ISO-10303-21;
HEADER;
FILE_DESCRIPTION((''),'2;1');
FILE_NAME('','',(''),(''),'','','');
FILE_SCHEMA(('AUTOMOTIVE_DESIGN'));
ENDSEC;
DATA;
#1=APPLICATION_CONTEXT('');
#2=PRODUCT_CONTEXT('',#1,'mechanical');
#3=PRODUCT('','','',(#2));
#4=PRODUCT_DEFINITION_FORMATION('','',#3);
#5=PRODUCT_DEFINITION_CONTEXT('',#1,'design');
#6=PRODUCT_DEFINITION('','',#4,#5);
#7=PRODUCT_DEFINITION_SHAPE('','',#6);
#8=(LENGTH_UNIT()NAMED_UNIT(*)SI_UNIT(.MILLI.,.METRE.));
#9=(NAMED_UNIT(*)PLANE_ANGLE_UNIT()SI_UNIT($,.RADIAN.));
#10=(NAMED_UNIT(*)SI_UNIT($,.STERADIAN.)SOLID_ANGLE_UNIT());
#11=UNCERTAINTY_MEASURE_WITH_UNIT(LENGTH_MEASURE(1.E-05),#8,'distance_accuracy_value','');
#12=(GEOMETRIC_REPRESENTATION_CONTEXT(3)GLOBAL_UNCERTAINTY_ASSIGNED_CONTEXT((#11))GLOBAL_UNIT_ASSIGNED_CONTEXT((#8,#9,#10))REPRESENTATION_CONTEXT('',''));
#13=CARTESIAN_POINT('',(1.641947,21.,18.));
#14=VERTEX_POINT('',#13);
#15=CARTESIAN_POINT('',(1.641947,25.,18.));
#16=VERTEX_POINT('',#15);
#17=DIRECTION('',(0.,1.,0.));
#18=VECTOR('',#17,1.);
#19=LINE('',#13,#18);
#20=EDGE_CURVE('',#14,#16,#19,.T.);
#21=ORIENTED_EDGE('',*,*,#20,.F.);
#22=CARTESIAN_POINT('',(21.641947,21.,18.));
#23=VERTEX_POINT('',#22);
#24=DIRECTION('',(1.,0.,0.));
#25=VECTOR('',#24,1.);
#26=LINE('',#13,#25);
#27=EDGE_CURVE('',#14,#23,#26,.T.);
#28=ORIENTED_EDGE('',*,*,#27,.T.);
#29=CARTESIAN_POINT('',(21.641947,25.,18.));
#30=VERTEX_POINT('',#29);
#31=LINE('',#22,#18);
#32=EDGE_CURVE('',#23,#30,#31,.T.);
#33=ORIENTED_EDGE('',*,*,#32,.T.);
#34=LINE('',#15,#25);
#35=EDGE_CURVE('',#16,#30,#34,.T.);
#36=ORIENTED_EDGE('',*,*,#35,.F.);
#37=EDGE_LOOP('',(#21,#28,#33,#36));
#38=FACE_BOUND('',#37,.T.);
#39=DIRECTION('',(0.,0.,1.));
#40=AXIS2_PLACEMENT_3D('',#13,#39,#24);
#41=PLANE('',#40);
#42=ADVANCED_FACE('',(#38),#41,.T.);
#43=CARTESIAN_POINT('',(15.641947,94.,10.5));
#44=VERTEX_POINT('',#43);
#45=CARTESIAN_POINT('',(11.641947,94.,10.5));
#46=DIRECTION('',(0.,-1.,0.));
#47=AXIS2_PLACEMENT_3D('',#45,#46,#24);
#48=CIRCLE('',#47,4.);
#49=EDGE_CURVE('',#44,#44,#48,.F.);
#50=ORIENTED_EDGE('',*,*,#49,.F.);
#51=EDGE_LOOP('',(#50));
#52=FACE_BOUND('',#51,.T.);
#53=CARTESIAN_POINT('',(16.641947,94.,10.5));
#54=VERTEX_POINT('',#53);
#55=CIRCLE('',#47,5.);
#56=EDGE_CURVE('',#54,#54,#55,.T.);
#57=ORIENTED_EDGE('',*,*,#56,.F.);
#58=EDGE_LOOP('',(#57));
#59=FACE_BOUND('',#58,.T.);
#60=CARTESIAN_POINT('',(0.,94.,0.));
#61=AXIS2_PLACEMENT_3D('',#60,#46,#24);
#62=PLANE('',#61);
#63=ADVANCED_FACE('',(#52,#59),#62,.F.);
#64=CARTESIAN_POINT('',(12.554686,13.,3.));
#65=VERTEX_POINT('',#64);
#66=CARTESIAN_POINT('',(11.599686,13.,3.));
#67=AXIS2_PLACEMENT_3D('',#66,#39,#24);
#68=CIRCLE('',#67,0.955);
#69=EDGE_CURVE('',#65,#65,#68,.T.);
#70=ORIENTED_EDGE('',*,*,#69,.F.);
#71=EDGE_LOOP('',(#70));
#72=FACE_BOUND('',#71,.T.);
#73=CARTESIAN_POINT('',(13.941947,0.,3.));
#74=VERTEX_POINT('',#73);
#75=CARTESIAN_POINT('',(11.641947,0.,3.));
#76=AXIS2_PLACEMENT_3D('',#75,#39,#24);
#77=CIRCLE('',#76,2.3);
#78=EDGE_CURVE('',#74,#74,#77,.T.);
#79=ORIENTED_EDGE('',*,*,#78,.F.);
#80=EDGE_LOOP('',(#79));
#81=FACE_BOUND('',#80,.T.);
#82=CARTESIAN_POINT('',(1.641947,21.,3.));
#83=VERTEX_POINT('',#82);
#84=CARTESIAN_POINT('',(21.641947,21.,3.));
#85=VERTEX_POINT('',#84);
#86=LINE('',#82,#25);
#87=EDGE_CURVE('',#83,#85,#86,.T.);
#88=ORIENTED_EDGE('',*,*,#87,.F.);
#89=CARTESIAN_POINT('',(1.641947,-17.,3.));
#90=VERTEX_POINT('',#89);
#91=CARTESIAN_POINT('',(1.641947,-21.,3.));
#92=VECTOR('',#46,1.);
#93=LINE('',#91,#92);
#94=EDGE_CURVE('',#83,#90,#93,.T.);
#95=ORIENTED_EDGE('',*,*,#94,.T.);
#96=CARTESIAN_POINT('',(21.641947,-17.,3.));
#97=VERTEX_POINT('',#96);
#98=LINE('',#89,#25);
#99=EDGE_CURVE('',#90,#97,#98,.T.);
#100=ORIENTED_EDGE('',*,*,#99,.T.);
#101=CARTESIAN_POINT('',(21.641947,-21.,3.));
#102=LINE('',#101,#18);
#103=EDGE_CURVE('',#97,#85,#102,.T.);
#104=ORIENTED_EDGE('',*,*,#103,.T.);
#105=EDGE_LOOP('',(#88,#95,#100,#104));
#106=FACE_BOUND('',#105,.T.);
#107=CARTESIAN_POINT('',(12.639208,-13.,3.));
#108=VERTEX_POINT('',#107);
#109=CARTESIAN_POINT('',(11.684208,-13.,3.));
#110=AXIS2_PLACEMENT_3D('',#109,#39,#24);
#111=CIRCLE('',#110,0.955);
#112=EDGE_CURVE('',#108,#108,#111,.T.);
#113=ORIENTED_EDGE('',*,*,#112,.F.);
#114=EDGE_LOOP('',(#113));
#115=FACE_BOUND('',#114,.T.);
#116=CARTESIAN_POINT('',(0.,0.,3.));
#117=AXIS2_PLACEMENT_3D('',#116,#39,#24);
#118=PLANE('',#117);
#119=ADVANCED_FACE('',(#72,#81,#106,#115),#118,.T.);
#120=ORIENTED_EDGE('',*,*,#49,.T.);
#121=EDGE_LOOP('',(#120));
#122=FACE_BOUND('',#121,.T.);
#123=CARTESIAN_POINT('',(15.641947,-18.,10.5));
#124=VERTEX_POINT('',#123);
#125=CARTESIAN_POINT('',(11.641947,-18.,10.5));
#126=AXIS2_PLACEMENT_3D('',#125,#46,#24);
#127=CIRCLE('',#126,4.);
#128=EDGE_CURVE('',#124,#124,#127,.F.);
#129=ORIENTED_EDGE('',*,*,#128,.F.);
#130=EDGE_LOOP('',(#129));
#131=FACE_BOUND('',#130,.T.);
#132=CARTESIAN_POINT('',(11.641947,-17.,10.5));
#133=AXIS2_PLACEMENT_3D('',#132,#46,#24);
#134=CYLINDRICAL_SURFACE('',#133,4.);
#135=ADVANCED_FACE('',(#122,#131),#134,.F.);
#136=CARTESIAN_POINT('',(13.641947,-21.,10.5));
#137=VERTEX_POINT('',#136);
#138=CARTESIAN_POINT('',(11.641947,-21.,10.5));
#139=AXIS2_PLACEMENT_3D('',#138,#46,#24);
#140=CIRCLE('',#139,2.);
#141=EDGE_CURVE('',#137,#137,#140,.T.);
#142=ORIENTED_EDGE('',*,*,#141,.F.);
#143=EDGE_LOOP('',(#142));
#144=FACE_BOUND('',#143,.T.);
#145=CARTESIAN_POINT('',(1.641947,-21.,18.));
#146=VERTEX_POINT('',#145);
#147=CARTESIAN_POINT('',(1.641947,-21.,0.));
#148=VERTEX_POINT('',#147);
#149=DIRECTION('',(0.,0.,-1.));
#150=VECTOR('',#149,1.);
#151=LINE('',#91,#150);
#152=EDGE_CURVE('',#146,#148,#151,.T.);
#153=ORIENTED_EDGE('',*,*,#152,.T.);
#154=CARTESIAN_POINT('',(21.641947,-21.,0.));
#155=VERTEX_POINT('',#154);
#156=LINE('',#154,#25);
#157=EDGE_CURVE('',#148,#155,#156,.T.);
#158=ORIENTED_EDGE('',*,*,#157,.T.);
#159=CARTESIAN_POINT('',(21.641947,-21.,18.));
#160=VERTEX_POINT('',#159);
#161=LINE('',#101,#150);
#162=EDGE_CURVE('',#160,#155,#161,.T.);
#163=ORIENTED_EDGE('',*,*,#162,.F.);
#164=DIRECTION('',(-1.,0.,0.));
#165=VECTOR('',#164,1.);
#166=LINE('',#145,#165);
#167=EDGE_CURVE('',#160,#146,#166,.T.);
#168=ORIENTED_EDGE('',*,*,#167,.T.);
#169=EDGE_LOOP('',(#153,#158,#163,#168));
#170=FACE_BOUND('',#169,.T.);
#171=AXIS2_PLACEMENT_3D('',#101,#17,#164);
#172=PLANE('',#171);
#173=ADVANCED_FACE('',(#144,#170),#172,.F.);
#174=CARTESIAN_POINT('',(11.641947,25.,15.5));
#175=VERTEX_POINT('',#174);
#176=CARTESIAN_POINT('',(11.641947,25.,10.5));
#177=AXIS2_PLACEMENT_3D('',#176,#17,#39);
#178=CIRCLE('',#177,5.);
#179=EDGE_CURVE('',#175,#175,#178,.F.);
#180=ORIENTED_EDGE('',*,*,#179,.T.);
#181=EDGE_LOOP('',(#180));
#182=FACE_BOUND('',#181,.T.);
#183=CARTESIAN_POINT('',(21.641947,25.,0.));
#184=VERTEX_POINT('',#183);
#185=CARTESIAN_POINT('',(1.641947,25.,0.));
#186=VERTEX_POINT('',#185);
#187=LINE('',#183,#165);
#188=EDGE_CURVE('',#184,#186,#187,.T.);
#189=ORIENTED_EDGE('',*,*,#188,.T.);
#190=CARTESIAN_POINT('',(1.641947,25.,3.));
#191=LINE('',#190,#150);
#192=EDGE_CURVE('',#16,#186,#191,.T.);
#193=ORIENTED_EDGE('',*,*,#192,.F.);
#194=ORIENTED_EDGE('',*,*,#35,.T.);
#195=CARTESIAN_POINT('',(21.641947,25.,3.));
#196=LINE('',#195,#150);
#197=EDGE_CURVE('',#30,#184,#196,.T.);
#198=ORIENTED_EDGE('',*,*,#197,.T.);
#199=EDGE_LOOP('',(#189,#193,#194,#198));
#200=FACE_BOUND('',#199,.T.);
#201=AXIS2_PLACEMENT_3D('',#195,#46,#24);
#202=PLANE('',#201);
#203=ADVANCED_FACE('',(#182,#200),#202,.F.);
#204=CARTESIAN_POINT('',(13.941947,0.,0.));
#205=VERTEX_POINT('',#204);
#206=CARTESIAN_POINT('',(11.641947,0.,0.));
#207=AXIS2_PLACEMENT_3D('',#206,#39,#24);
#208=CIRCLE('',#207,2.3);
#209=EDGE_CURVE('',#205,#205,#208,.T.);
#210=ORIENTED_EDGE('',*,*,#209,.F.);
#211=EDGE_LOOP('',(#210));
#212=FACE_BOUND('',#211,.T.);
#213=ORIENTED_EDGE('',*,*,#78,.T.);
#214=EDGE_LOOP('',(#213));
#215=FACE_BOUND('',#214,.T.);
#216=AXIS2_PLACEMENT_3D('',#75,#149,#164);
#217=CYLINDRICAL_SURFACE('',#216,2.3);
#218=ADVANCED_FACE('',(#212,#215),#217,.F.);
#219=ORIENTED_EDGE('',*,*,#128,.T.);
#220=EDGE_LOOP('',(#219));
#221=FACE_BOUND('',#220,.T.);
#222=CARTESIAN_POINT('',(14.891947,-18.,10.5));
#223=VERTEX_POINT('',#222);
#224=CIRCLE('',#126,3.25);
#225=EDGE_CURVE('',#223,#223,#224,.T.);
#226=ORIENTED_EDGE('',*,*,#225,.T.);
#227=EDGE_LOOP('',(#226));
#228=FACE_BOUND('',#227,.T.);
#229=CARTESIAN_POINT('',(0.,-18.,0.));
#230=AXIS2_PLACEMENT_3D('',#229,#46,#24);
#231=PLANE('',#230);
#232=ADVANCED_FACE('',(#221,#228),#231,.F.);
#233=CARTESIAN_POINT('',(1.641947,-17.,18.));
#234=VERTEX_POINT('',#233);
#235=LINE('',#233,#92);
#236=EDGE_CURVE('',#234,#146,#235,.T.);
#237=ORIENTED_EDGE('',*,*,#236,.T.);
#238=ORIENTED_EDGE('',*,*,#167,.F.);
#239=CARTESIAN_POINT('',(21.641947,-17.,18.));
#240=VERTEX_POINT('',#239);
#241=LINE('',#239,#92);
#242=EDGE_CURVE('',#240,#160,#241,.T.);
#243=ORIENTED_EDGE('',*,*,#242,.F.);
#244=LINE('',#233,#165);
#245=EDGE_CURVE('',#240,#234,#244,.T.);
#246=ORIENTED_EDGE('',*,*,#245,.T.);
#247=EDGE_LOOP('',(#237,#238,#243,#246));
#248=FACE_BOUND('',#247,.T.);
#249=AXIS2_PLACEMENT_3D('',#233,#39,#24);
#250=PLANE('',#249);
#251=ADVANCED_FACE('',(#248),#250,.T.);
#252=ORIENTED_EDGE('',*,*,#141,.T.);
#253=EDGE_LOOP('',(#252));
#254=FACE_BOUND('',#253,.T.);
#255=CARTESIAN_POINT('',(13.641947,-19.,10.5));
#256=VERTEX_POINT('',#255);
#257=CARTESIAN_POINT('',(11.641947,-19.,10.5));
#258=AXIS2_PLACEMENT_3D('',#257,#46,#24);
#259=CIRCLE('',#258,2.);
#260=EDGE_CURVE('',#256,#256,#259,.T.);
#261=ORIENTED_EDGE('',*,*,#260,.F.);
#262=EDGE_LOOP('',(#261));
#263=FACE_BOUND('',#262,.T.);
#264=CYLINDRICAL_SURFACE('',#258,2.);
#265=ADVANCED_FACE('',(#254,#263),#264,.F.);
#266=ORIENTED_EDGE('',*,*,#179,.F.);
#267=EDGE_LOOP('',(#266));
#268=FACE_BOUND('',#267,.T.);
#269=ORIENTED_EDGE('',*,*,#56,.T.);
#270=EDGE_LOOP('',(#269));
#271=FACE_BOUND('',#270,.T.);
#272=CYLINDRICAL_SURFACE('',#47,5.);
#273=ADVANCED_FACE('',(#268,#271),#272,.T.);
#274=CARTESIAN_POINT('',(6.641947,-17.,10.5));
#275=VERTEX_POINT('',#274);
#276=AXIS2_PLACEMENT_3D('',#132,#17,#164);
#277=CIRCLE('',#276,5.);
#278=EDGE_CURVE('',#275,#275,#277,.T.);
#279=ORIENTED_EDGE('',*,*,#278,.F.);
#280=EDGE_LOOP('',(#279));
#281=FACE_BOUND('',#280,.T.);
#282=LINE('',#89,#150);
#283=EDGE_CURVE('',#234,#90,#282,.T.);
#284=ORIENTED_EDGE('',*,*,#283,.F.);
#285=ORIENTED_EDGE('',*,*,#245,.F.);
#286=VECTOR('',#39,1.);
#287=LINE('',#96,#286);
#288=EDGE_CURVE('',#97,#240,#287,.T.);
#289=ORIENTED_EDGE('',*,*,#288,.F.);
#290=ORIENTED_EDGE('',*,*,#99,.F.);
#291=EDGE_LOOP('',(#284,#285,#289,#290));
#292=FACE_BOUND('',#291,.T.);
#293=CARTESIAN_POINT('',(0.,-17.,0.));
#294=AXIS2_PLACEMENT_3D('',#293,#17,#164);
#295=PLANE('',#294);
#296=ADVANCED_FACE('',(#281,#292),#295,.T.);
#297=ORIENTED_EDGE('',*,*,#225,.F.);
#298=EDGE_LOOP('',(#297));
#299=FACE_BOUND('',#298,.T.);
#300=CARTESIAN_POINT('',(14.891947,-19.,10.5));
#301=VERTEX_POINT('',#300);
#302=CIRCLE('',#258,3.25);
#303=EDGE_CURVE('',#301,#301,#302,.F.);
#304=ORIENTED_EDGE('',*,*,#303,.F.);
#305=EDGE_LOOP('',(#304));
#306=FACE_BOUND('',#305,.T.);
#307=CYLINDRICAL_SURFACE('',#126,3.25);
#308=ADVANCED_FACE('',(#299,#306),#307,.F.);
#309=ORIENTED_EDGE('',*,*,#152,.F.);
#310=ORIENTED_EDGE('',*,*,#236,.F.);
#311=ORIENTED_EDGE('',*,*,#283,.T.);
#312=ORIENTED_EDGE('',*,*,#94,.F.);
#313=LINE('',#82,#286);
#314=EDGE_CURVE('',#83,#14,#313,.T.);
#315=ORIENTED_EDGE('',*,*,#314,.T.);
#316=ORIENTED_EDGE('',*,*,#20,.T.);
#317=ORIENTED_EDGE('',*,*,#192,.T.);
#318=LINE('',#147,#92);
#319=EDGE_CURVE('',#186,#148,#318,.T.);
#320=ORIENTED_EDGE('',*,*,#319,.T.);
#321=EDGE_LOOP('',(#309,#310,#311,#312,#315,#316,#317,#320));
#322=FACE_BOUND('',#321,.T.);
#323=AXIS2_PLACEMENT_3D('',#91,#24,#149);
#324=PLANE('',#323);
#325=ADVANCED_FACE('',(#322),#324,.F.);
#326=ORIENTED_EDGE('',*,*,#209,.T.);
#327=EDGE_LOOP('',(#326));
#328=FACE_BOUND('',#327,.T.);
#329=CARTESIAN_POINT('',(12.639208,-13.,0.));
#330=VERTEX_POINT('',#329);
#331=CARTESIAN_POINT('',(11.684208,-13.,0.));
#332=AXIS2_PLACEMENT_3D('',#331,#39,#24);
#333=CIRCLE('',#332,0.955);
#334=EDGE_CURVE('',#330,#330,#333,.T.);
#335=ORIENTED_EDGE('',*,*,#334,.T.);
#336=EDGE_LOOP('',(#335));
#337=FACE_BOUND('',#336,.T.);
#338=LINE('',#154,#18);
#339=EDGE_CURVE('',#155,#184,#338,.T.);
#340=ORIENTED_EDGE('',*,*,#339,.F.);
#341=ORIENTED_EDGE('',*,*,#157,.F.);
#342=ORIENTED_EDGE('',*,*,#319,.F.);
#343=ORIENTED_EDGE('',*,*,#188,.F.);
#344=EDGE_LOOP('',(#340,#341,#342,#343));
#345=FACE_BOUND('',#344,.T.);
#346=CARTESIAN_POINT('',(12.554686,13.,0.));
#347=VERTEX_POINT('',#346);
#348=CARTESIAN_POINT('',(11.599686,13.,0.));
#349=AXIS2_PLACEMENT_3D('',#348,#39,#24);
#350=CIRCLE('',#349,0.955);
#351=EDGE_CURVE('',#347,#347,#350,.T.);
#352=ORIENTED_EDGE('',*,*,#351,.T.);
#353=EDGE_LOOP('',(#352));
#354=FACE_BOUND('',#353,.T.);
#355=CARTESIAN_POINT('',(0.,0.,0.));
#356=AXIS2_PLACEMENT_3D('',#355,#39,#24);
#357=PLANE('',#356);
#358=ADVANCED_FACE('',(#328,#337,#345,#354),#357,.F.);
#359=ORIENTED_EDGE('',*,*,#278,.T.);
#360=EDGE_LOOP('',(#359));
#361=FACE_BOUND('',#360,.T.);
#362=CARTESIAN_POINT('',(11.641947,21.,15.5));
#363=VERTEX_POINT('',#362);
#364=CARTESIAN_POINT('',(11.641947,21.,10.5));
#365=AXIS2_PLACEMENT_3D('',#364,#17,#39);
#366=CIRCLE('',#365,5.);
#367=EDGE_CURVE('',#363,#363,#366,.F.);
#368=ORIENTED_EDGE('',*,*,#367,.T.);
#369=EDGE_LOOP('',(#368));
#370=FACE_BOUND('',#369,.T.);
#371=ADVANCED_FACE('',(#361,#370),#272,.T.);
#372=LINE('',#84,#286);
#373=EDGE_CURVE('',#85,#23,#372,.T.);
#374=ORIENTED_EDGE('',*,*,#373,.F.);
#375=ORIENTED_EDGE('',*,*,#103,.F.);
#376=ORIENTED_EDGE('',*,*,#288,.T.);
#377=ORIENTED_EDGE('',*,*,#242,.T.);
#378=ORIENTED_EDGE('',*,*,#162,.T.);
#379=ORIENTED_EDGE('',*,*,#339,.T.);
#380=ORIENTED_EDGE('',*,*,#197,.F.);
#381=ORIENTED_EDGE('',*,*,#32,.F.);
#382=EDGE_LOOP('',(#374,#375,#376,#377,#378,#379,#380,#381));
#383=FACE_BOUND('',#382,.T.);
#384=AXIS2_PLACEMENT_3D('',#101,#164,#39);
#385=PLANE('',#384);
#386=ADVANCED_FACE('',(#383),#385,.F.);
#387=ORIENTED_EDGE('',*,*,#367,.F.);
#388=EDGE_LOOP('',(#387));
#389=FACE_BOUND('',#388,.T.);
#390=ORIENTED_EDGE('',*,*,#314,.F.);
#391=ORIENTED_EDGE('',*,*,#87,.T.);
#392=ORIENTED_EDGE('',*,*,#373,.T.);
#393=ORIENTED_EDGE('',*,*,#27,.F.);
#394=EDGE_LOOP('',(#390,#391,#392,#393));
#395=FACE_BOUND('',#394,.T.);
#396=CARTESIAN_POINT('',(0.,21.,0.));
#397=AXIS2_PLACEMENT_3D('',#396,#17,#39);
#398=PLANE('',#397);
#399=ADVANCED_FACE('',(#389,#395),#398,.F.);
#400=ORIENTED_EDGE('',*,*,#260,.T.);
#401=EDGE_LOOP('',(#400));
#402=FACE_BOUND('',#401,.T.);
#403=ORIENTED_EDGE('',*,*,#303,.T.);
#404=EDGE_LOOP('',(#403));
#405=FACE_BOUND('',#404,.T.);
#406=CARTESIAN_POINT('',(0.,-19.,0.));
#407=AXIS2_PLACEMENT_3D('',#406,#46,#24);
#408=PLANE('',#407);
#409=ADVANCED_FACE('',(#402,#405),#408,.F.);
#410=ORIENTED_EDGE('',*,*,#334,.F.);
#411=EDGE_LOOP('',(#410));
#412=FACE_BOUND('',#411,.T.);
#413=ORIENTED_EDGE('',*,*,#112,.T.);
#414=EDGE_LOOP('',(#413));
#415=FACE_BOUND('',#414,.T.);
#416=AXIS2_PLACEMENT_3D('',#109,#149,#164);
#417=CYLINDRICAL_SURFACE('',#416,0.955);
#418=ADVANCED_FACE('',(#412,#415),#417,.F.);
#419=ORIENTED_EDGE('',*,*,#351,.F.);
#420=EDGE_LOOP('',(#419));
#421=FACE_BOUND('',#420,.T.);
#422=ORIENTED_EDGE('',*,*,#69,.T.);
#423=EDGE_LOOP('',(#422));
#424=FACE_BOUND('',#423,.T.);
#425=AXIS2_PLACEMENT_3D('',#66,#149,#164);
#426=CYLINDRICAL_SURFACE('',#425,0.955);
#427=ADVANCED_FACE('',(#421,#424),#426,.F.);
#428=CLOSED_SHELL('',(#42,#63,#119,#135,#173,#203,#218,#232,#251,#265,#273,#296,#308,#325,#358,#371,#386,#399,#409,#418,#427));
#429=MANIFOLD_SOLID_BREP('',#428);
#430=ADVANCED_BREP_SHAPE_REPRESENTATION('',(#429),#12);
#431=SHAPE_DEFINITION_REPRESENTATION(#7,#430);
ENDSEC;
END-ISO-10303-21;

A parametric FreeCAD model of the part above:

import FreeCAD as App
import Part
import Sketcher

V = App.Vector
Q = App.Units.Quantity


def add_polygon(sketch, points):
    """Adds a closed chain of lines whose ends are joined by coincident constraints."""
    first, n = sketch.GeometryCount, len(points)
    for a, b in zip(points, points[1:] + points[:1]):
        sketch.addGeometry(Part.LineSegment(App.Vector(*a, 0), App.Vector(*b, 0)), False)
    for i in range(n):
        sketch.addConstraint(Sketcher.Constraint("Coincident", first + i, 2, first + (i + 1) % n, 1))

doc = App.newDocument("Part")
body = doc.addObject("PartDesign::Body", "Body")

# Sketch on XY plane
sketch1 = body.newObject("Sketcher::SketchObject", "Sketch")
sketch1.AttachmentSupport = (doc.getObject("XY_Plane"), [""])
sketch1.MapMode = "FlatFace"
add_polygon(sketch1, [(1.6, 25), (1.6, -21), (21.6, -21), (21.6, 25)])  # lines 0-3
sketch1.addGeometry(Part.Circle(V(11.7, -13, 0), V(0, 0, 1), 1), False)  # 4
sketch1.addGeometry(Part.Circle(V(11.6, 13, 0), V(0, 0, 1), 1), False)  # 5
sketch1.addGeometry(Part.Circle(V(11.6, 0, 0), V(0, 0, 1), 2.3), False)  # 6
sketch1.addConstraint([
    Sketcher.Constraint("Vertical", 0),
    Sketcher.Constraint("Horizontal", 1),
    Sketcher.Constraint("Vertical", 2),
    Sketcher.Constraint("Horizontal", 3),
    Sketcher.Constraint("Equal", 4, 5),
    Sketcher.Constraint("PointOnObject", 6, 3, -1),
    Sketcher.Constraint("Diameter", 6, Q("4.6 mm")),
    Sketcher.Constraint("Diameter", 4, Q("1.91 mm")),
    Sketcher.Constraint("DistanceX", 1, 1, 1, 2, Q("20 mm")),
    Sketcher.Constraint("DistanceY", 0, 2, 0, 1, Q("46 mm")),
    Sketcher.Constraint("DistanceY", 4, 3, -1, 1, Q("13 mm")),
    Sketcher.Constraint("DistanceY", -1, 1, 5, 3, Q("13 mm")),
    Sketcher.Constraint("DistanceY", 0, 2, -1, 1, Q("21 mm")),
    Sketcher.Constraint("DistanceX", 0, 2, 6, 3, Q("10 mm")),
    Sketcher.Constraint("DistanceX", -1, 1, 4, 3, Q("11.684208 mm")),
    Sketcher.Constraint("DistanceX", 6, 3, 4, 3, Q("0.042261 mm")),
    Sketcher.Constraint("DistanceX", 5, 3, 6, 3, Q("0.042261 mm")),
])
pad1 = body.newObject("PartDesign::Pad", "Pad")
pad1.Profile = sketch1
pad1.Length = 3

# Sketch on XZ plane
sketch2 = body.newObject("Sketcher::SketchObject", "Sketch001")
sketch2.AttachmentSupport = (doc.getObject("XZ_Plane"), [""])
sketch2.MapMode = "FlatFace"
sketch2.AttachmentOffset = App.Placement(V(0, 0, 21), App.Rotation())
add_polygon(sketch2, [(1.6, 18), (1.6, 3), (21.6, 3), (21.6, 18)])  # lines 0-3
sketch2.addGeometry(Part.Circle(V(11.6, 10.5, 0), V(0, 0, 1), 4), False)  # 4
sketch2.addConstraint([
    Sketcher.Constraint("Vertical", 0),
    Sketcher.Constraint("Horizontal", 1),
    Sketcher.Constraint("Vertical", 2),
    Sketcher.Constraint("Horizontal", 3),
    Sketcher.Constraint("Diameter", 4, Q("8 mm")),
    Sketcher.Constraint("DistanceX", 1, 1, 1, 2, Q("20 mm")),
    Sketcher.Constraint("DistanceY", 0, 2, 0, 1, Q("15 mm")),
    Sketcher.Constraint("DistanceY", -1, 1, 0, 2, Q("3 mm")),
    Sketcher.Constraint("DistanceX", 0, 2, 4, 3, Q("10 mm")),
    Sketcher.Constraint("DistanceY", -1, 1, 4, 3, Q("10.5 mm")),
    Sketcher.Constraint("DistanceX", -1, 1, 4, 3, Q("11.641947 mm")),
])
pad2 = body.newObject("PartDesign::Pad", "Pad001")
pad2.Profile = sketch2
pad2.Length = 4
pad2.Reversed = True

# Sketch on XZ plane
sketch3 = body.newObject("Sketcher::SketchObject", "Sketch002")
sketch3.AttachmentSupport = (doc.getObject("XZ_Plane"), [""])
sketch3.MapMode = "FlatFace"
sketch3.AttachmentOffset = App.Placement(V(0, 0, 21), App.Rotation())
sketch3.addGeometry([
    Part.Circle(V(11.6, 10.5, 0), V(0, 0, 1), 5),
    Part.Circle(V(11.6, 10.5, 0), V(0, 0, 1), 4),
], False)
sketch3.addConstraint([
    Sketcher.Constraint("Coincident", 1, 3, 0, 3),
    Sketcher.Constraint("Diameter", 0, Q("10 mm")),
    Sketcher.Constraint("Diameter", 1, Q("8 mm")),
    Sketcher.Constraint("DistanceY", -1, 1, 0, 3, Q("10.5 mm")),
    Sketcher.Constraint("DistanceX", -1, 1, 0, 3, Q("11.641947 mm")),
])
pad3 = body.newObject("PartDesign::Pad", "Pad002")
pad3.Profile = sketch3
pad3.Length = 115
pad3.Reversed = True

# Sketch on XZ plane
sketch4 = body.newObject("Sketcher::SketchObject", "Sketch003")
sketch4.AttachmentSupport = (doc.getObject("XZ_Plane"), [""])
sketch4.MapMode = "FlatFace"
sketch4.AttachmentOffset = App.Placement(V(0, 0, -25), App.Rotation())
add_polygon(sketch4, [(1.6, 3), (1.6, 18), (21.6, 18), (21.6, 3)])  # lines 0-3
sketch4.addGeometry(Part.Circle(V(11.6, 10.5, 0), V(0, 0, 1), 4), False)  # 4
sketch4.addConstraint([
    Sketcher.Constraint("Vertical", 0),
    Sketcher.Constraint("Horizontal", 1),
    Sketcher.Constraint("Vertical", 2),
    Sketcher.Constraint("Horizontal", 3),
    Sketcher.Constraint("Diameter", 4, Q("8 mm")),
    Sketcher.Constraint("DistanceX", 1, 1, 1, 2, Q("20 mm")),
    Sketcher.Constraint("DistanceY", 0, 1, 0, 2, Q("15 mm")),
    Sketcher.Constraint("DistanceY", -1, 1, 0, 2, Q("18 mm")),
    Sketcher.Constraint("DistanceX", 0, 2, 4, 3, Q("10 mm")),
    Sketcher.Constraint("DistanceY", -1, 1, 4, 3, Q("10.5 mm")),
    Sketcher.Constraint("DistanceX", -1, 1, 4, 3, Q("11.641947 mm")),
])
pad4 = body.newObject("PartDesign::Pad", "Pad003")
pad4.Profile = sketch4
pad4.Length = 4
body2 = doc.addObject("PartDesign::Body", "Body001")

# Sketch on XZ plane
sketch5 = body2.newObject("Sketcher::SketchObject", "Sketch004")
sketch5.AttachmentSupport = (doc.getObject("XZ_Plane001"), [""])
sketch5.MapMode = "FlatFace"
sketch5.AttachmentOffset = App.Placement(V(0, 0, 21), App.Rotation())
sketch5.addGeometry([
    Part.Circle(V(11.6, 10.5, 0), V(0, 0, 1), 3.2),
    Part.Circle(V(11.6, 10.5, 0), V(0, 0, 1), 2),
], False)
sketch5.addConstraint([
    Sketcher.Constraint("Coincident", 1, 3, 0, 3),
    Sketcher.Constraint("Diameter", 1, Q("4 mm")),
    Sketcher.Constraint("Diameter", 0, Q("6.5 mm")),
    Sketcher.Constraint("DistanceY", -1, 1, 0, 3, Q("10.5 mm")),
    Sketcher.Constraint("DistanceX", -1, 1, 0, 3, Q("11.641947 mm")),
])
pad5 = body2.newObject("PartDesign::Pad", "Pad004")
pad5.Profile = sketch5
pad5.Length = 2
pad5.Reversed = True
body.AllowCompound = True
doc.recompute()

boolean = body.newObject("PartDesign::Boolean", "Boolean")
boolean.Type = "Fuse"
boolean.addObjects([body2])

# Sketch on XZ plane
sketch6 = body.newObject("Sketcher::SketchObject", "Sketch005")
sketch6.AttachmentSupport = (doc.getObject("XZ_Plane"), [""])
sketch6.MapMode = "FlatFace"
sketch6.AttachmentOffset = App.Placement(V(0, 0, 21), App.Rotation())
sketch6.addGeometry([
    Part.Circle(V(11.6, 10.5, 0), V(0, 0, 1), 4),
    Part.Circle(V(11.6, 10.5, 0), V(0, 0, 1), 3.2),
], False)
sketch6.addConstraint([
    Sketcher.Constraint("Coincident", 1, 3, 0, 3),
    Sketcher.Constraint("Diameter", 0, Q("8 mm")),
    Sketcher.Constraint("Diameter", 1, Q("6.5 mm")),
    Sketcher.Constraint("DistanceY", -1, 1, 0, 3, Q("10.5 mm")),
    Sketcher.Constraint("DistanceX", -1, 1, 0, 3, Q("11.641947 mm")),
])
pad6 = body.newObject("PartDesign::Pad", "Pad005")
pad6.Profile = sketch6
pad6.Length = 3
pad6.Reversed = True

doc.recompute()
